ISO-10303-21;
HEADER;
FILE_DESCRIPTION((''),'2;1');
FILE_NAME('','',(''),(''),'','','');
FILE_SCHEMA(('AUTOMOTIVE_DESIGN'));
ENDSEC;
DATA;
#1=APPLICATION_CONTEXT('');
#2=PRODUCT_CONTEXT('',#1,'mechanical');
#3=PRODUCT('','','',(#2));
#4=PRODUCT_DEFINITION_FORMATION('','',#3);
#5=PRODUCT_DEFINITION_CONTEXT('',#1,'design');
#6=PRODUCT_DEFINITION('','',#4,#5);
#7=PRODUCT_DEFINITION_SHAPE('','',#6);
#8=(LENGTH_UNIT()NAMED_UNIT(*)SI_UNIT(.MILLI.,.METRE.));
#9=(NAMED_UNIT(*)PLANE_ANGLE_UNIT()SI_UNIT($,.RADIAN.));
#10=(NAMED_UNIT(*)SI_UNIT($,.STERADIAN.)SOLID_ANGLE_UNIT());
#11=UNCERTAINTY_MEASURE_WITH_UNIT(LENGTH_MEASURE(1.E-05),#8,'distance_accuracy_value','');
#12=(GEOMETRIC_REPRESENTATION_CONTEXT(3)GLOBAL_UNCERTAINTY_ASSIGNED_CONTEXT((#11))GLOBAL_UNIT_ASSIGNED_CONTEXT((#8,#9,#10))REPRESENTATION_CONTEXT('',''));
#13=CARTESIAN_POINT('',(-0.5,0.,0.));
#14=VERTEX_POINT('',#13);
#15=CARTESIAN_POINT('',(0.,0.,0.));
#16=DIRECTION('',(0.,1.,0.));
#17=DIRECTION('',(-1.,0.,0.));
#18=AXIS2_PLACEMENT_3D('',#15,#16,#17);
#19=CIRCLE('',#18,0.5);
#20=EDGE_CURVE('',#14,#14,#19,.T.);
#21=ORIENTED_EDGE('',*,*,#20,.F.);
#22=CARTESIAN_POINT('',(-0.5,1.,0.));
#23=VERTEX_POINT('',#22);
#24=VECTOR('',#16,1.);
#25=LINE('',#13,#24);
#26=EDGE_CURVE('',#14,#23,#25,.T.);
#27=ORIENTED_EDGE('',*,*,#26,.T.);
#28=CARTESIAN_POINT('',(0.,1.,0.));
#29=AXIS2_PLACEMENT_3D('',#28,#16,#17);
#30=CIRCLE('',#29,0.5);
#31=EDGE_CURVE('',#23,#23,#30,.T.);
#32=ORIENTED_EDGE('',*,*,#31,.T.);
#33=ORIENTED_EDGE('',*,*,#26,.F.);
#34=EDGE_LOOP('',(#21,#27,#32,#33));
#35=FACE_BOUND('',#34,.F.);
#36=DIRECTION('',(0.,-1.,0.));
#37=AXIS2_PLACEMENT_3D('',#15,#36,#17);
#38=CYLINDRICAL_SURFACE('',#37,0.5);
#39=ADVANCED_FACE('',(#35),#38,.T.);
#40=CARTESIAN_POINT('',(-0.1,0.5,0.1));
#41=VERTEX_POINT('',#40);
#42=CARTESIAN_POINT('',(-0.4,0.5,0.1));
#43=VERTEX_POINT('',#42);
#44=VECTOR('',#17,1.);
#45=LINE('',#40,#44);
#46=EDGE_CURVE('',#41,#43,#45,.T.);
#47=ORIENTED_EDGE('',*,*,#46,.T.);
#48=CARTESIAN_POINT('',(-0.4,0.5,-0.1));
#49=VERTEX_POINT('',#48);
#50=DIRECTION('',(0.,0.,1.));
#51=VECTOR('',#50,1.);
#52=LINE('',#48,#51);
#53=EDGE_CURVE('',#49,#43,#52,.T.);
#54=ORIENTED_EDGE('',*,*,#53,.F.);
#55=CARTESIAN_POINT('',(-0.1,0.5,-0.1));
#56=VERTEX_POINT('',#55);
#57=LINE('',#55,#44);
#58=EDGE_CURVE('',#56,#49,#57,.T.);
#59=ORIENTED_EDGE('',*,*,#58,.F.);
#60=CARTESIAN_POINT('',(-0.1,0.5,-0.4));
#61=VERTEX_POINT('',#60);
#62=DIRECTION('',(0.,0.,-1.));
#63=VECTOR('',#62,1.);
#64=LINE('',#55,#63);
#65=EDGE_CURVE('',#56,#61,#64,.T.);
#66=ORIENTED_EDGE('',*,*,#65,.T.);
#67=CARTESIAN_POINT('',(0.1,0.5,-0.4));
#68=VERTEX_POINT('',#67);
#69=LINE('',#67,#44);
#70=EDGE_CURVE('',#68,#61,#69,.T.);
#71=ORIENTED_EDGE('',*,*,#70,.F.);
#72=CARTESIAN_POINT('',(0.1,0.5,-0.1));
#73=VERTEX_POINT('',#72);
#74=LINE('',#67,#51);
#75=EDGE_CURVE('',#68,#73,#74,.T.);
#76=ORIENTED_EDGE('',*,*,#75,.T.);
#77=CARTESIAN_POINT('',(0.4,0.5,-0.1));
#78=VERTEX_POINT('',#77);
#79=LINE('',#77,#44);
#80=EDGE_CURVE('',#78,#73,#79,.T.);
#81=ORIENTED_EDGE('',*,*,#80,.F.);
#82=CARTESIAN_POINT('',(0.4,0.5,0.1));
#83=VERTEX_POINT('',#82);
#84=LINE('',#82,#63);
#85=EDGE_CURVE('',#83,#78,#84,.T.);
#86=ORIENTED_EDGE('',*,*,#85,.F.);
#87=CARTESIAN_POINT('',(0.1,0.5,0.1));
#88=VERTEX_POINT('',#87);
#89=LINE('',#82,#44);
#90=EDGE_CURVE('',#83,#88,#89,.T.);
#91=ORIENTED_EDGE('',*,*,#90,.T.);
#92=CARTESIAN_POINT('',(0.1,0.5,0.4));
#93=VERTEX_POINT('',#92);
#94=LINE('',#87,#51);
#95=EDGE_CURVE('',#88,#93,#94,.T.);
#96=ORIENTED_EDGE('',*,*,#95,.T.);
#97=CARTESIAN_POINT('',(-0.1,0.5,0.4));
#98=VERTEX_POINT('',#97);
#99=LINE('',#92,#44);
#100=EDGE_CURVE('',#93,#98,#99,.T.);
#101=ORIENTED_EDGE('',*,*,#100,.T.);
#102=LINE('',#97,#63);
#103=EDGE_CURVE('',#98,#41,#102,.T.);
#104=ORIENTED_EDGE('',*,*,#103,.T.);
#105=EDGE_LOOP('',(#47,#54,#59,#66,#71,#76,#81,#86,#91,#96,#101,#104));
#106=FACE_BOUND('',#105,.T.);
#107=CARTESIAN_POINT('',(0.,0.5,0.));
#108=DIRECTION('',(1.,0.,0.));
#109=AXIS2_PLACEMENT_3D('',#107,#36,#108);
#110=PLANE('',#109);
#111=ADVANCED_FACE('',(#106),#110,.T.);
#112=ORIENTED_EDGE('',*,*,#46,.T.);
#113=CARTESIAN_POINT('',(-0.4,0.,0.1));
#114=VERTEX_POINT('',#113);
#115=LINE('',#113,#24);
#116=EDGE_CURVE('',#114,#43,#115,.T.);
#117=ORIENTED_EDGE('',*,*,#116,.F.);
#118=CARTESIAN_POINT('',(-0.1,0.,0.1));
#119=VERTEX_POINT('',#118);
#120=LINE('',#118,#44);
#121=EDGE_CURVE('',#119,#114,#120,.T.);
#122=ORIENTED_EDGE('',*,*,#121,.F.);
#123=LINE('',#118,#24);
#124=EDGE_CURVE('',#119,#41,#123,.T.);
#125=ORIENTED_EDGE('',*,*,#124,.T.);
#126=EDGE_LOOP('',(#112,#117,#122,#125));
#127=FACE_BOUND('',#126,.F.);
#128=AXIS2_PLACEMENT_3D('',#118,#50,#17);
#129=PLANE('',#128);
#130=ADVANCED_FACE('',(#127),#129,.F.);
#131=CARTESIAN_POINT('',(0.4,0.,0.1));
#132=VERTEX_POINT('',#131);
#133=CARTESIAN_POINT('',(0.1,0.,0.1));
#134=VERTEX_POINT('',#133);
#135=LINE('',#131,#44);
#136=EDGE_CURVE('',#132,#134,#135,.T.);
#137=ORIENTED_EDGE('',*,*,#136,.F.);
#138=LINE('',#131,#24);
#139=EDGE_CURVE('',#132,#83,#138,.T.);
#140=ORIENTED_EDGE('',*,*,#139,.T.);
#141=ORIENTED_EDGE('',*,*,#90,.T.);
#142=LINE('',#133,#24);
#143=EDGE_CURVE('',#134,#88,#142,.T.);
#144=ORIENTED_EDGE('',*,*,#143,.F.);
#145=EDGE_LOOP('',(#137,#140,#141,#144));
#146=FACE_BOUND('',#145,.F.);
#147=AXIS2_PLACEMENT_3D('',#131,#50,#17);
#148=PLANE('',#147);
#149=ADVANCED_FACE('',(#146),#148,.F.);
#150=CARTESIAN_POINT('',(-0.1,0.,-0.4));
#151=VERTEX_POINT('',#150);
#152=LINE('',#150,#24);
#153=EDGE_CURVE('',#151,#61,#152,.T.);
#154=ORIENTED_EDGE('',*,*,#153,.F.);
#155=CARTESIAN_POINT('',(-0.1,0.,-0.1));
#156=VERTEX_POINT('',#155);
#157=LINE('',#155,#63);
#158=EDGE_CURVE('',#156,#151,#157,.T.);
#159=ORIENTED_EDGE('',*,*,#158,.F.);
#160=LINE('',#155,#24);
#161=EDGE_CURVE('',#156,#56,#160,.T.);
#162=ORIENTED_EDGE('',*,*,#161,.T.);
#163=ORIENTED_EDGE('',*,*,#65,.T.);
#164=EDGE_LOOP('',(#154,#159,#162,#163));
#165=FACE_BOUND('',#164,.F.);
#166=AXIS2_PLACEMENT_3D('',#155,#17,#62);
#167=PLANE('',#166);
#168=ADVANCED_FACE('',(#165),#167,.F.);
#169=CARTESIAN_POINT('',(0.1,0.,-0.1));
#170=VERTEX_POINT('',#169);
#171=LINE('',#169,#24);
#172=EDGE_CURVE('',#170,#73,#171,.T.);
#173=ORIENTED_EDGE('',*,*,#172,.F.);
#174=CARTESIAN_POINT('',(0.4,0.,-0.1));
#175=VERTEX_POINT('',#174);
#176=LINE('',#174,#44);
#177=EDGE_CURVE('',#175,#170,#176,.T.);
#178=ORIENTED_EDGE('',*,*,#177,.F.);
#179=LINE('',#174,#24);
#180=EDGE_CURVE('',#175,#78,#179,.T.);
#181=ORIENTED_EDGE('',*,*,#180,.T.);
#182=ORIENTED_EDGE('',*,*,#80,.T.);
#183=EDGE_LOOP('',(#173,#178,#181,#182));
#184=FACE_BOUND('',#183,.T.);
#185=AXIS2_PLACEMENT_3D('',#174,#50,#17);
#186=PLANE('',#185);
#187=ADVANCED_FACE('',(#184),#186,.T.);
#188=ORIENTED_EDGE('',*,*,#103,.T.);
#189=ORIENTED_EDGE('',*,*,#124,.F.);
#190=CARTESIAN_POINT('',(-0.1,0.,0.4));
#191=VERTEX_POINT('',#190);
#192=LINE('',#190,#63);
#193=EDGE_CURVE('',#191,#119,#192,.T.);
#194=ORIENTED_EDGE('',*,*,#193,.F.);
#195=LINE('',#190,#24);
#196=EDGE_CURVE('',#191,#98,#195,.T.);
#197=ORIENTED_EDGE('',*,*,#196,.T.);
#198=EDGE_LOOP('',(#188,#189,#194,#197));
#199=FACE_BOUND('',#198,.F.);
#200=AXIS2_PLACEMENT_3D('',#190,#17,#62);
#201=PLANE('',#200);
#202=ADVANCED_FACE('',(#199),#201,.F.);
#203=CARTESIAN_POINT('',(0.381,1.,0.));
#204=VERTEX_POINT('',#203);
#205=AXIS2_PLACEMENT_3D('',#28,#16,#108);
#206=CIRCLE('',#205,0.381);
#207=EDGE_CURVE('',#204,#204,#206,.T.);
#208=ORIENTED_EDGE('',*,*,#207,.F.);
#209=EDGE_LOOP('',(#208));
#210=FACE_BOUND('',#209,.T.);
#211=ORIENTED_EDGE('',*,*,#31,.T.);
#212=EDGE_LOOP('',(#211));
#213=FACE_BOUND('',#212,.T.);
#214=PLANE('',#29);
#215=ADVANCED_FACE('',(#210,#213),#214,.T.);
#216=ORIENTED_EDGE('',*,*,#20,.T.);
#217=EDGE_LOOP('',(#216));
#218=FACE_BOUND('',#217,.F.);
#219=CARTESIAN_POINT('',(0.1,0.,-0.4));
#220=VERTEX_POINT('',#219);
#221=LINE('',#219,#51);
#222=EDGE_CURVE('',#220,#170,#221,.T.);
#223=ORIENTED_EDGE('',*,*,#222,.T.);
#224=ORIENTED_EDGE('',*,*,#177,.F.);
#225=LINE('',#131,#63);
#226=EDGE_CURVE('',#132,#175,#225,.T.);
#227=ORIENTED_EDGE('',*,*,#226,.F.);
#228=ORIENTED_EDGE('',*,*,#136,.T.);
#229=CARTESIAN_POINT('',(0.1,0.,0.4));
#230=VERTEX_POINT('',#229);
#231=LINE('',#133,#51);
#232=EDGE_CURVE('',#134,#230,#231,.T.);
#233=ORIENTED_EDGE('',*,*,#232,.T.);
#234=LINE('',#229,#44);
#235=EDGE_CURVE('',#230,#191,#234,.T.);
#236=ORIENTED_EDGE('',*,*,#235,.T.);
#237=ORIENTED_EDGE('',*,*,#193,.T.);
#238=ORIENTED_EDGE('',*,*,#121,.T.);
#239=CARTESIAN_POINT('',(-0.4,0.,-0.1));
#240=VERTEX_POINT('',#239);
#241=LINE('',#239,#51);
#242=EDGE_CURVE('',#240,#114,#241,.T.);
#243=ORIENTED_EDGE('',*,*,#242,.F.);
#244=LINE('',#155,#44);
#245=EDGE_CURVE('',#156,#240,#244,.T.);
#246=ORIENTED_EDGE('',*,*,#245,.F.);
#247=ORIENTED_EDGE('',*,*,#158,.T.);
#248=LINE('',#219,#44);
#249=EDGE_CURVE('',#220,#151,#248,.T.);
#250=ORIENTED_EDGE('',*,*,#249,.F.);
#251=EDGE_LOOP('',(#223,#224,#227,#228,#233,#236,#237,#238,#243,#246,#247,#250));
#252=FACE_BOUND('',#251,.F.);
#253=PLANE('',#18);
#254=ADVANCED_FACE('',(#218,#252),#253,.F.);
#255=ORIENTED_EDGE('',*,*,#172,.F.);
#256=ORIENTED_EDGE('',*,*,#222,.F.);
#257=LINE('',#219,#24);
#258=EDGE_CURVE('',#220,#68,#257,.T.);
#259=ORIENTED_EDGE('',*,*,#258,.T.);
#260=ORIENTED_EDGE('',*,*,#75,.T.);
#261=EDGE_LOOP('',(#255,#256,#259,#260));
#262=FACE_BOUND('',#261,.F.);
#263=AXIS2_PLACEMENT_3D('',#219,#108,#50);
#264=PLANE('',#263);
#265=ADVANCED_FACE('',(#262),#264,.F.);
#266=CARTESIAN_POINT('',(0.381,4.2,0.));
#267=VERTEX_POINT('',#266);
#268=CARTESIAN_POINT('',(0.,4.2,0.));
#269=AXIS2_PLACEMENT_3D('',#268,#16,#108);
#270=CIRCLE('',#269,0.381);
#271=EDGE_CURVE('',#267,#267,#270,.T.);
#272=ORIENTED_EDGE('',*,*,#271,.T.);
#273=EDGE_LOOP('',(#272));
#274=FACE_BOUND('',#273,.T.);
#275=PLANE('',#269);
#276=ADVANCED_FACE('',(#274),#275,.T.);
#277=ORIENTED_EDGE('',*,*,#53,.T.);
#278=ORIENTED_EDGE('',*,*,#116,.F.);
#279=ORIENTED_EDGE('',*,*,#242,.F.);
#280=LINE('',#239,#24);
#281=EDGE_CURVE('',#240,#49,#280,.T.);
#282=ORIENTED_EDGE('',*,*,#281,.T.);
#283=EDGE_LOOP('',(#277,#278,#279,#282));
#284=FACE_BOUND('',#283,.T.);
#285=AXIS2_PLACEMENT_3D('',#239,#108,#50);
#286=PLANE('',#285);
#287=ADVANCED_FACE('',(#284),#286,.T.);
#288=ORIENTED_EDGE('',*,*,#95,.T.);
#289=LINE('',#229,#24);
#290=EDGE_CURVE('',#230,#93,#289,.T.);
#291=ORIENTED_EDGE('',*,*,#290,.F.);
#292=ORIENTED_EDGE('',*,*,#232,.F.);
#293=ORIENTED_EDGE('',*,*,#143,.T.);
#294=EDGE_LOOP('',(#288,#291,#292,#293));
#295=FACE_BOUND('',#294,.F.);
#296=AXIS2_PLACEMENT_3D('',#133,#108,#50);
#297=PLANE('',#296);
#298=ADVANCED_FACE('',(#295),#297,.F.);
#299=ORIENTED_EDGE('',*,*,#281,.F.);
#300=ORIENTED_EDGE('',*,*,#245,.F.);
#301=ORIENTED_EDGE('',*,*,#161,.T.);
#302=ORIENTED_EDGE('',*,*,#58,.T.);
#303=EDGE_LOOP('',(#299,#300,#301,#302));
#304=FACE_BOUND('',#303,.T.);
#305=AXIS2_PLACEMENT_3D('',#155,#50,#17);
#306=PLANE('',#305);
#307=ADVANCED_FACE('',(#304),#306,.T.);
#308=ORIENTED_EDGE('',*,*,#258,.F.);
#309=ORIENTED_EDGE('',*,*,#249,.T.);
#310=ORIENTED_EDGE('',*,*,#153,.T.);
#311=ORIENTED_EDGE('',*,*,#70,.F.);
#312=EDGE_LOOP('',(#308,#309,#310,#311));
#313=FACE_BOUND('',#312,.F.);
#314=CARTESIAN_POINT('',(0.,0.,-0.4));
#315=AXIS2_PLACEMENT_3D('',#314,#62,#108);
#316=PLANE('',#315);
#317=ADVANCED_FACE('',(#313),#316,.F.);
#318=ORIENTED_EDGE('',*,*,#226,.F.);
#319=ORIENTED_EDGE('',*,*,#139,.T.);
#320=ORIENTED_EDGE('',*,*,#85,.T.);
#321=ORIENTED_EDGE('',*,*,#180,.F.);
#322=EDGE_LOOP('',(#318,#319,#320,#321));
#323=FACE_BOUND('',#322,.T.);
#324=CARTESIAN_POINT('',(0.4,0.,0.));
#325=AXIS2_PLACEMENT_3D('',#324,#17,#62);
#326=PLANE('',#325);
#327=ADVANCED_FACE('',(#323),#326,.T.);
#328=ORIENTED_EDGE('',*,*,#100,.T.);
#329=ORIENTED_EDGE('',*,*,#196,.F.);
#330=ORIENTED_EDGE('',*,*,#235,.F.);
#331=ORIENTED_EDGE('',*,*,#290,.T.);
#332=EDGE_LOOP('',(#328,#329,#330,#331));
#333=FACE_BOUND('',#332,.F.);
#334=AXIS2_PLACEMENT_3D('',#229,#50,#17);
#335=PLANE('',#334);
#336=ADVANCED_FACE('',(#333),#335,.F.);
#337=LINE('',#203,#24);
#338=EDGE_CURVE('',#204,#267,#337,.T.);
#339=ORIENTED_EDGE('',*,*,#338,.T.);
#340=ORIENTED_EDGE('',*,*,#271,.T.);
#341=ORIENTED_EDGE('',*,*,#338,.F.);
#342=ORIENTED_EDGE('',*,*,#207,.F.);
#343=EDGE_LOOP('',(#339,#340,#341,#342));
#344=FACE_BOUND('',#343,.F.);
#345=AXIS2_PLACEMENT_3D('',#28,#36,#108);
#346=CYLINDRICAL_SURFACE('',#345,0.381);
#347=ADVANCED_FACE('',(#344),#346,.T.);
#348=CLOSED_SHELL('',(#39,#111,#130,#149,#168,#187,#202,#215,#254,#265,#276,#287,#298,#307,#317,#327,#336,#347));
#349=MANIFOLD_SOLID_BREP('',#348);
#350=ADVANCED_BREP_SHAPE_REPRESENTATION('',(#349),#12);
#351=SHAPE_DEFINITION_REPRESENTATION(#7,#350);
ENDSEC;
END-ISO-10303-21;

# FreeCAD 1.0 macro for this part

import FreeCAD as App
import Part
import Sketcher
from FreeCAD import Vector

doc = App.newDocument("Part")
body = doc.addObject("PartDesign::Body", "Body")

# Sketch on XZ plane
sketch1 = doc.addObject("Sketcher::SketchObject", "Sketch")
body.addObject(sketch1)
sketch1.AttachmentSupport = (doc.XZ_Plane, [""])
sketch1.MapMode = "FlatFace"
sketch1.addGeometry(Part.Circle(Vector(0, 0, 0), Vector(0, 0, 1), 0.5), False)
sketch1.addConstraint([
    Sketcher.Constraint("Coincident", 0, 3, -1, 1),
    Sketcher.Constraint("Diameter", 0, 1.0),
])
pad1 = doc.addObject("PartDesign::Pad", "Pad")
body.addObject(pad1)
pad1.Profile = sketch1
pad1.Length = 1
pad1.Reversed = True

# Sketch on XZ plane
sketch2 = doc.addObject("Sketcher::SketchObject", "Sketch001")
body.addObject(sketch2)
sketch2.AttachmentSupport = (doc.XZ_Plane, [""])
sketch2.MapMode = "FlatFace"
sketch2.AttachmentOffset = App.Placement(Vector(0, 0, -1), App.Rotation())
sketch2.addGeometry(Part.Circle(Vector(0, 0, 0), Vector(0, 0, 1), 0.38), False)
sketch2.addConstraint([
    Sketcher.Constraint("Coincident", 0, 3, -1, 1),
    Sketcher.Constraint("Diameter", 0, 0.762),
])
pad2 = doc.addObject("PartDesign::Pad", "Pad001")
body.addObject(pad2)
pad2.Profile = sketch2
pad2.Length = 3.2
pad2.Reversed = True

# Sketch on XZ plane
sketch3 = doc.addObject("Sketcher::SketchObject", "Sketch002")
body.addObject(sketch3)
sketch3.AttachmentSupport = (doc.XZ_Plane, [""])
sketch3.MapMode = "FlatFace"
sketch3.addGeometry([
    Part.LineSegment(Vector(0.4, -0.1, 0), Vector(0.4, 0.1, 0)),  # 0
    Part.LineSegment(Vector(0.4, 0.1, 0), Vector(0.1, 0.1, 0)),  # 1
    Part.LineSegment(Vector(0.1, 0.1, 0), Vector(0.1, 0.4, 0)),  # 2
    Part.LineSegment(Vector(0.1, 0.4, 0), Vector(-0.1, 0.4, 0)),  # 3
    Part.LineSegment(Vector(-0.1, 0.4, 0), Vector(-0.1, 0.1, 0)),  # 4
    Part.LineSegment(Vector(-0.1, 0.1, 0), Vector(-0.4, 0.1, 0)),  # 5
    Part.LineSegment(Vector(-0.4, 0.1, 0), Vector(-0.4, -0.1, 0)),  # 6
    Part.LineSegment(Vector(-0.4, -0.1, 0), Vector(-0.1, -0.1, 0)),  # 7
    Part.LineSegment(Vector(-0.1, -0.1, 0), Vector(-0.1, -0.4, 0)),  # 8
    Part.LineSegment(Vector(-0.1, -0.4, 0), Vector(0.1, -0.4, 0)),  # 9
    Part.LineSegment(Vector(0.1, -0.4, 0), Vector(0.1, -0.1, 0)),  # 10
    Part.LineSegment(Vector(0.1, -0.1, 0), Vector(0.4, -0.1, 0)),  # 11
], False)
sketch3.addConstraint([
    Sketcher.Constraint("Coincident", 0, 2, 1, 1),
    Sketcher.Constraint("Coincident", 1, 2, 2, 1),
    Sketcher.Constraint("Coincident", 2, 2, 3, 1),
    Sketcher.Constraint("Coincident", 3, 2, 4, 1),
    Sketcher.Constraint("Coincident", 4, 2, 5, 1),
    Sketcher.Constraint("Coincident", 5, 2, 6, 1),
    Sketcher.Constraint("Coincident", 6, 2, 7, 1),
    Sketcher.Constraint("Coincident", 7, 2, 8, 1),
    Sketcher.Constraint("Coincident", 8, 2, 9, 1),
    Sketcher.Constraint("Coincident", 9, 2, 10, 1),
    Sketcher.Constraint("Coincident", 10, 2, 11, 1),
    Sketcher.Constraint("Coincident", 11, 2, 0, 1),
    Sketcher.Constraint("Vertical", 0),
    Sketcher.Constraint("Horizontal", 1),
    Sketcher.Constraint("Vertical", 2),
    Sketcher.Constraint("Horizontal", 3),
    Sketcher.Constraint("Vertical", 4),
    Sketcher.Constraint("Horizontal", 5),
    Sketcher.Constraint("Vertical", 6),
    Sketcher.Constraint("Horizontal", 7),
    Sketcher.Constraint("Vertical", 8),
    Sketcher.Constraint("Horizontal", 9),
    Sketcher.Constraint("Vertical", 10),
    Sketcher.Constraint("Horizontal", 11),
    Sketcher.Constraint("Symmetric", 0, 2, 6, 2, -1, 1),
    Sketcher.Constraint("Symmetric", 2, 2, 8, 2, -1, 1),
    Sketcher.Constraint("Symmetric", 4, 2, 10, 2, -1, 1),
    Sketcher.Constraint("Symmetric", 1, 2, 4, 2, -2),
    Sketcher.Constraint("Equal", 9, 0),
    Sketcher.Constraint("Equal", 11, 2),
    Sketcher.Constraint("DistanceX", 3, 2, 3, 1, 0.2),
    Sketcher.Constraint("DistanceX", 5, 2, 0, 2, 0.8),
])
pocket1 = doc.addObject("PartDesign::Pocket", "Pocket")
body.addObject(pocket1)
pocket1.Profile = sketch3
pocket1.Length = 0.5

doc.recompute()
